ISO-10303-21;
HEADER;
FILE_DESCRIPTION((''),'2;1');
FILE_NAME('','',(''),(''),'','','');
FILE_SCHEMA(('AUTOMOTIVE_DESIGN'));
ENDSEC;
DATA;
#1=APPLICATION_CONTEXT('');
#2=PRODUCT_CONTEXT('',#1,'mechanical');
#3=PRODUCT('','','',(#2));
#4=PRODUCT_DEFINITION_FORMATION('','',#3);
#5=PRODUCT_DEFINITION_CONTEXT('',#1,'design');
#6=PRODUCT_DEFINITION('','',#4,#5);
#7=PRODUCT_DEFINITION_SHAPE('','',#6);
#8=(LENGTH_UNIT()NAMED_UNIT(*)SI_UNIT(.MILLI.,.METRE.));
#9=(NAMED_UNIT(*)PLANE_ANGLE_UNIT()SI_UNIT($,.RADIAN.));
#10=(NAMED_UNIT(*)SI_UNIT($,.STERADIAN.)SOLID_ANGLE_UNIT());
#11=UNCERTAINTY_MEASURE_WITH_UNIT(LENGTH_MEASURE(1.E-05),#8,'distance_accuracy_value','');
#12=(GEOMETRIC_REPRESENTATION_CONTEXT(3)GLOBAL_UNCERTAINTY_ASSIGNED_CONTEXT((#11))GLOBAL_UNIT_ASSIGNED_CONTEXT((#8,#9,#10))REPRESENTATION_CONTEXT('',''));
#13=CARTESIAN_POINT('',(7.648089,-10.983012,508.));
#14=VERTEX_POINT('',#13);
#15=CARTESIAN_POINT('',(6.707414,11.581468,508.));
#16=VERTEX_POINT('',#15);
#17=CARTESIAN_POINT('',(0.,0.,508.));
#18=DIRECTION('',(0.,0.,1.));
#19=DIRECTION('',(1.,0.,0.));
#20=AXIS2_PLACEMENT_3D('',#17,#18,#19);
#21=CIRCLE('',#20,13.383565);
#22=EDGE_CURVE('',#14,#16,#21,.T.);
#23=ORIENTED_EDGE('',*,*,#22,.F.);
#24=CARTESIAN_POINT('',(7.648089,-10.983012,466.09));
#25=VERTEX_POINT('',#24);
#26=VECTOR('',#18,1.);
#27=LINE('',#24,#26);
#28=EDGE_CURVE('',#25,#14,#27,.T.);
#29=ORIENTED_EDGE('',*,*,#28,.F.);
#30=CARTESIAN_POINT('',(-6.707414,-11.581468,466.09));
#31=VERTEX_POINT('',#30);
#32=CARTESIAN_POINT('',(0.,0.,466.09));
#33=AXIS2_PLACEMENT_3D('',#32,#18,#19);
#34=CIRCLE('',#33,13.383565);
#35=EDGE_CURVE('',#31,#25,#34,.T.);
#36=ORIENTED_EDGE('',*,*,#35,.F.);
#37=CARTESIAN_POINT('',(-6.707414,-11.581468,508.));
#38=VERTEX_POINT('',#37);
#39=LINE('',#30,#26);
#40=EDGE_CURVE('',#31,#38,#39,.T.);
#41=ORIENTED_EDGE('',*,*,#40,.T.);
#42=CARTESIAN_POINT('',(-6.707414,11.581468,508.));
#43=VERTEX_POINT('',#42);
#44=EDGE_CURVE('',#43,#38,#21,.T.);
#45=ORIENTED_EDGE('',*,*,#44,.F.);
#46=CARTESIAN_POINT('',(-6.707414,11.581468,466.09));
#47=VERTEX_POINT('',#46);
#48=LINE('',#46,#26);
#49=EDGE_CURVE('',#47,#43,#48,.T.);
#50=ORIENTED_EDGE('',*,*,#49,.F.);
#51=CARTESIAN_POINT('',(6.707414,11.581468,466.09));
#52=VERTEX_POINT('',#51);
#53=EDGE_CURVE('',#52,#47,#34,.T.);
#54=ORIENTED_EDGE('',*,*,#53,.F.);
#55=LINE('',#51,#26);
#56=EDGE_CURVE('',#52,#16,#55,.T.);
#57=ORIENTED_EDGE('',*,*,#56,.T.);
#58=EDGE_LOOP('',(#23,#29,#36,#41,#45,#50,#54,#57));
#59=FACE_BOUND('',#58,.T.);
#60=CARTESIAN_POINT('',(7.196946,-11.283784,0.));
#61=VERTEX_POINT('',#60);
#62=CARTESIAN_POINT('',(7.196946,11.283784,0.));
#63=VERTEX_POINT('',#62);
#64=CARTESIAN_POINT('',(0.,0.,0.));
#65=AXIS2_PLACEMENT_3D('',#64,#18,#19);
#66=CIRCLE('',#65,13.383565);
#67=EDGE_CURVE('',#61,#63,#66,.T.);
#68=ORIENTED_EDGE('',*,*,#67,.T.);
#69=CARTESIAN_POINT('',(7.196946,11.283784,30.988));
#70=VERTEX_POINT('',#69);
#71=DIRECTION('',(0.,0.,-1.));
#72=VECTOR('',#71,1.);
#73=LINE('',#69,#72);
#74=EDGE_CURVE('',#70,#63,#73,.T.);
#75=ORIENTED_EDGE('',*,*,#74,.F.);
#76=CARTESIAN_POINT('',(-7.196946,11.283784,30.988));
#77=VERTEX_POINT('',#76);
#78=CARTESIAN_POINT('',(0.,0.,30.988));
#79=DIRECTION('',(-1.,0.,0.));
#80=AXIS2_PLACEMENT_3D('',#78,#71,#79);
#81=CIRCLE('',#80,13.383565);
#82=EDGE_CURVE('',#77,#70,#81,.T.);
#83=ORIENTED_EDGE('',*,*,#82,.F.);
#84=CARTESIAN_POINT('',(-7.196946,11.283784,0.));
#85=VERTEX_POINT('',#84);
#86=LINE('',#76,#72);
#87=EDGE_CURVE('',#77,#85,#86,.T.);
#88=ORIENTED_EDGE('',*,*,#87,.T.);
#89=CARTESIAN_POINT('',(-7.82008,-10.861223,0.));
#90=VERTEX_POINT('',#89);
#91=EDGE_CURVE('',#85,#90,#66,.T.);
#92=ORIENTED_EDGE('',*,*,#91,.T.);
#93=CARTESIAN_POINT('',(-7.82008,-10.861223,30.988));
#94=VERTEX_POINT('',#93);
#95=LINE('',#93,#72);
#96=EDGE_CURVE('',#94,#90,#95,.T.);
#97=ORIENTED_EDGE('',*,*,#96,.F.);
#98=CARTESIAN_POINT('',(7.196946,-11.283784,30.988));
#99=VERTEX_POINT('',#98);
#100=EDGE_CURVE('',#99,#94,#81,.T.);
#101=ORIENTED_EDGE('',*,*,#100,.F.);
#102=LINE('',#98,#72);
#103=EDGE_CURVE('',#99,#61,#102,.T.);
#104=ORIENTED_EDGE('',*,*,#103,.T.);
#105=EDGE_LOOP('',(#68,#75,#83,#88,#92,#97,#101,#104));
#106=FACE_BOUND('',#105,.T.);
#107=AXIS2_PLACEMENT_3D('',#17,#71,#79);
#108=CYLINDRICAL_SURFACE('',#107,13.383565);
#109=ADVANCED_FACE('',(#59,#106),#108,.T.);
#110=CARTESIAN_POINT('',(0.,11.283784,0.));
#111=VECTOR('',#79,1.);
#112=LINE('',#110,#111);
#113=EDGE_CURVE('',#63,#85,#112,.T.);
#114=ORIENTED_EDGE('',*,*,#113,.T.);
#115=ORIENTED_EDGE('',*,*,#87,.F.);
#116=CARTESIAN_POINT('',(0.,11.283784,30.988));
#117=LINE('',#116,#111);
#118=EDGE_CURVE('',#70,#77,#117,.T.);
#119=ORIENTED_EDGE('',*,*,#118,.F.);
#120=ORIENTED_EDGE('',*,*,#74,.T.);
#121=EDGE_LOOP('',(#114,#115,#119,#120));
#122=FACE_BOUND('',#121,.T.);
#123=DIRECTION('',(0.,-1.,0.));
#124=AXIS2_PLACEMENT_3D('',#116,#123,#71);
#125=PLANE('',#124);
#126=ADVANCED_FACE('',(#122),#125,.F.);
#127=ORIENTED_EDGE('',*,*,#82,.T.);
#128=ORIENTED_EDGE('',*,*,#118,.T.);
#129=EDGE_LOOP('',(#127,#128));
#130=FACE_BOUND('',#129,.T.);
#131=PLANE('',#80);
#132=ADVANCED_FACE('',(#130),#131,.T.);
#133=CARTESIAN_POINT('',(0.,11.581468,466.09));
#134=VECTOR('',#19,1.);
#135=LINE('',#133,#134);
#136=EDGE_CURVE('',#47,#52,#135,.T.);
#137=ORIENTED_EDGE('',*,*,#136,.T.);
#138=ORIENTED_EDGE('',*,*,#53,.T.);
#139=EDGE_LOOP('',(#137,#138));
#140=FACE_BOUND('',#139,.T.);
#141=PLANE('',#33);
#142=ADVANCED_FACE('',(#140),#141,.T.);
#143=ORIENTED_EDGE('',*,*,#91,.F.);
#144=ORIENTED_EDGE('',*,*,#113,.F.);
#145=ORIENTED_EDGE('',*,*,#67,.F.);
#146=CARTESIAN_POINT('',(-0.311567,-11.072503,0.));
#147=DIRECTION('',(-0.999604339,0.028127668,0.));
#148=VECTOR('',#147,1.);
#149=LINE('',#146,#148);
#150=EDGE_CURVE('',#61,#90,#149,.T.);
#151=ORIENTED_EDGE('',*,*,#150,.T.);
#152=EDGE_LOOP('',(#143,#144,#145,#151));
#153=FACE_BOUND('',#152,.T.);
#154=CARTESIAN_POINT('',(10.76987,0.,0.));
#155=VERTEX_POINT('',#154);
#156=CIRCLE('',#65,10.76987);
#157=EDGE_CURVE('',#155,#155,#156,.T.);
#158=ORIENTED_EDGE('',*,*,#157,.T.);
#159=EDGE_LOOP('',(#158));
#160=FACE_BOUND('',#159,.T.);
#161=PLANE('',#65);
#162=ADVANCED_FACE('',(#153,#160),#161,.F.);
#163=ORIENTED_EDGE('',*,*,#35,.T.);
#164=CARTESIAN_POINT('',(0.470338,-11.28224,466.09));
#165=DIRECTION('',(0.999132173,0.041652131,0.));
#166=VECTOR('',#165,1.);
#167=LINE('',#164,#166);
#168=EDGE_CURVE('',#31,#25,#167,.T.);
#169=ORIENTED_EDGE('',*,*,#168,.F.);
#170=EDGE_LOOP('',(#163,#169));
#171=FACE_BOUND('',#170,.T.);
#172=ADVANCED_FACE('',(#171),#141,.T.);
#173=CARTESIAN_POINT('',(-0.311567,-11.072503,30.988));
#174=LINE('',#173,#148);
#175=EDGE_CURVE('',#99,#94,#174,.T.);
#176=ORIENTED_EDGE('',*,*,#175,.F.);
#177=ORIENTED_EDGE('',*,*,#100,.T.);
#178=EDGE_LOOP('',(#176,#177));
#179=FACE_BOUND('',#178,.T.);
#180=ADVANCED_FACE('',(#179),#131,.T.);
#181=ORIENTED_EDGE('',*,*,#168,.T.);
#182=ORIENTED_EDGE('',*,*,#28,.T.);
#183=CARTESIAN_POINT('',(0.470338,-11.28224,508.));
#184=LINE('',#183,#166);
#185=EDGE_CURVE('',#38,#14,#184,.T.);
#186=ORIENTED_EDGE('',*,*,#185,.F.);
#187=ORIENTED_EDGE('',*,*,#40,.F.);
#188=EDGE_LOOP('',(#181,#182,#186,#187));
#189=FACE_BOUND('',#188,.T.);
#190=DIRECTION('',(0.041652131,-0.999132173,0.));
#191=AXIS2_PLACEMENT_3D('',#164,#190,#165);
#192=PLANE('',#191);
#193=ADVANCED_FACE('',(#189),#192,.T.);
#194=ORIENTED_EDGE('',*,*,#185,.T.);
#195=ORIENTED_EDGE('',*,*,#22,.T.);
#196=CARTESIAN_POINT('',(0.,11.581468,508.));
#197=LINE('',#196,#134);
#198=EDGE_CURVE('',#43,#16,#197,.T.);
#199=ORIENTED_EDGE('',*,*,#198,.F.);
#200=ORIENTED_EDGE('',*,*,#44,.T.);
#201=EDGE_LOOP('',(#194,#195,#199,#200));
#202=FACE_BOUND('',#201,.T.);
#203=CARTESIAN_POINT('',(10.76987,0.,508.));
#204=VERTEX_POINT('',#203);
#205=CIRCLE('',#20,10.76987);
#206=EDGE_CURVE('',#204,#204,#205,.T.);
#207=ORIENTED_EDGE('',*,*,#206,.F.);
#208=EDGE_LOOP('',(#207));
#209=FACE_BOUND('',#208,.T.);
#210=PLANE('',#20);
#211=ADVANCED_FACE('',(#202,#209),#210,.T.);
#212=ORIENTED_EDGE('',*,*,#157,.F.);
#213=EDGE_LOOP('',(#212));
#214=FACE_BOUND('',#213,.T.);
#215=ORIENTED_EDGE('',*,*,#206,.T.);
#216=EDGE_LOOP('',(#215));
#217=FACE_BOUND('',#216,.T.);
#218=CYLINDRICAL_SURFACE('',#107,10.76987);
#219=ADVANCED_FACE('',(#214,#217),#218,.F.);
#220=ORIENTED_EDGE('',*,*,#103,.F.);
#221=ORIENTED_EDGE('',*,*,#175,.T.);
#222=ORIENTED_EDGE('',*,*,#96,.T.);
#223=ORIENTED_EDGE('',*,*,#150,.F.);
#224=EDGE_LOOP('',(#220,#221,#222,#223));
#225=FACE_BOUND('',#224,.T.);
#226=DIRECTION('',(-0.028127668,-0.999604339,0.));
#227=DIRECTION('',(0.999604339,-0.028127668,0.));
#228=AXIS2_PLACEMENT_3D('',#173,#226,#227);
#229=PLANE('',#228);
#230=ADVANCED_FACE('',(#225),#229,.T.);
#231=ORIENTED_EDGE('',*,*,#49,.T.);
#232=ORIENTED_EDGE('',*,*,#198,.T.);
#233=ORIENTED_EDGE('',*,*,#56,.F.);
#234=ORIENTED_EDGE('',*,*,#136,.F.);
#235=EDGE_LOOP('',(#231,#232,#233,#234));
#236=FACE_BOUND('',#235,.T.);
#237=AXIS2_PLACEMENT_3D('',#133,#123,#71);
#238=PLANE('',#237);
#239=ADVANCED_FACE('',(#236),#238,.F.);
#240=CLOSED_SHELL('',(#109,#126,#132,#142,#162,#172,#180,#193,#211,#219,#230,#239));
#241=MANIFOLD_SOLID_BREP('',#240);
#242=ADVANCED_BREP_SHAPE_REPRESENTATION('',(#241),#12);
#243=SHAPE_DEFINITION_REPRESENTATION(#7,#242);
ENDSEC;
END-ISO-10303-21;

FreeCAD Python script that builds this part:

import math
import FreeCAD as App
import Part
import Sketcher

doc = App.newDocument("Part")
params = doc.addObject("Spreadsheet::Sheet", "Params")
for row, (alias, value) in enumerate([
    ("pad1_length", "20 in"),
    ("pocket1_length", "1.65 in"),
    ("pocket2_length", "1.22 in"),
], start=1):
    params.set(f"A{row}", alias)
    params.set(f"B{row}", "=" + value)
    params.setAlias(f"B{row}", alias)

body = doc.addObject("PartDesign::Body", "Body")

# Sketch on XY plane
sketch1 = body.newObject("Sketcher::SketchObject", "Sketch")
sketch1.AttachmentSupport = (doc.getObject("XY_Plane"), [""])
sketch1.MapMode = "FlatFace"
sketch1.addGeometry([
    Part.Circle(App.Vector(0, 0, 0), App.Vector(0, 0, 1), 13),
    Part.Circle(App.Vector(0, 0, 0), App.Vector(0, 0, 1), 11),
], False)
sketch1.addConstraint([
    Sketcher.Constraint("Coincident", 0, 3, -1, 1),
    Sketcher.Constraint("Coincident", 1, 3, -1, 1),
    Sketcher.Constraint("Diameter", 0, 26.76713),
    Sketcher.Constraint("Diameter", 1, 21.53974),
])
pad1 = body.newObject("PartDesign::Pad", "Pad")
pad1.Profile = sketch1
pad1.setExpression("Length", "Params.pad1_length")

# Sketch on XY plane
sketch2 = body.newObject("Sketcher::SketchObject", "Sketch001")
sketch2.AttachmentSupport = (doc.getObject("XY_Plane"), [""])
sketch2.MapMode = "FlatFace"
sketch2.AttachmentOffset = App.Placement(App.Vector(0, 0, 18.35 * 25.4), App.Rotation())
sketch2.addGeometry([
    Part.ArcOfCircle(Part.Circle(App.Vector(0, 0, 0), App.Vector(0, 0, 1), 13), math.radians(60), math.radians(120)),
    Part.LineSegment(App.Vector(-7, 12, 0), App.Vector(7, 12, 0)),
    Part.LineSegment(App.Vector(8, -11, 0), App.Vector(-7, -12, 0)),
    Part.ArcOfCircle(Part.Circle(App.Vector(0, 0, 0), App.Vector(0, 0, 1), 13), math.radians(-120), math.radians(-55)),
], False)
sketch2.addConstraint([
    Sketcher.Constraint("Coincident", 0, 1, 1, 2),
    Sketcher.Constraint("Coincident", 1, 1, 0, 2),
    Sketcher.Constraint("Coincident", 2, 1, 3, 2),
    Sketcher.Constraint("Coincident", 3, 1, 2, 2),
    Sketcher.Constraint("Horizontal", 1),
    Sketcher.Constraint("Coincident", 0, 3, -1, 1),
    Sketcher.Constraint("Coincident", 3, 3, -1, 1),
    Sketcher.Constraint("Equal", 0, 3),
    Sketcher.Constraint("Vertical", 1, 1, 3, 1),
    Sketcher.Constraint("Radius", 0, 13.383565),
    Sketcher.Constraint("DistanceX", 1, 1, 1, 2, 13.414828),
    Sketcher.Constraint("DistanceX", -1, 1, 2, 1, 7.648089),
])
pocket1 = body.newObject("PartDesign::Pocket", "Pocket")
pocket1.Profile = sketch2
pocket1.setExpression("Length", "Params.pocket1_length")
pocket1.Reversed = True

# Sketch on XY plane
sketch3 = body.newObject("Sketcher::SketchObject", "Sketch002")
sketch3.AttachmentSupport = (doc.getObject("XY_Plane"), [""])
sketch3.MapMode = "FlatFace"
sketch3.addGeometry([
    Part.ArcOfCircle(Part.Circle(App.Vector(0, 0, 0), App.Vector(0, 0, 1), 13), math.radians(57), math.radians(123)),
    Part.LineSegment(App.Vector(7, 11, 0), App.Vector(-7, 11, 0)),
    Part.LineSegment(App.Vector(-8, -11, 0), App.Vector(7, -11, 0)),
    Part.ArcOfCircle(Part.Circle(App.Vector(0, 0, 0), App.Vector(0, 0, 1), 13), math.radians(-126), math.radians(-57)),
], False)
sketch3.addConstraint([
    Sketcher.Constraint("Coincident", 0, 1, 1, 1),
    Sketcher.Constraint("Coincident", 1, 2, 0, 2),
    Sketcher.Constraint("Coincident", 2, 1, 3, 1),
    Sketcher.Constraint("Coincident", 3, 2, 2, 2),
    Sketcher.Constraint("Horizontal", 1),
    Sketcher.Constraint("Coincident", 0, 3, -1, 1),
    Sketcher.Constraint("Coincident", 3, 3, -1, 1),
    Sketcher.Constraint("Equal", 0, 3),
    Sketcher.Constraint("Vertical", 0, 1, 3, 2),
    Sketcher.Constraint("Radius", 0, 13.383565),
    Sketcher.Constraint("Distance", 2, 15.022971),
    Sketcher.Constraint("DistanceX", 1, 2, 1, 1, 14.393893),
])
pocket2 = body.newObject("PartDesign::Pocket", "Pocket001")
pocket2.Profile = sketch3
pocket2.setExpression("Length", "Params.pocket2_length")
pocket2.Reversed = True

doc.recompute()
